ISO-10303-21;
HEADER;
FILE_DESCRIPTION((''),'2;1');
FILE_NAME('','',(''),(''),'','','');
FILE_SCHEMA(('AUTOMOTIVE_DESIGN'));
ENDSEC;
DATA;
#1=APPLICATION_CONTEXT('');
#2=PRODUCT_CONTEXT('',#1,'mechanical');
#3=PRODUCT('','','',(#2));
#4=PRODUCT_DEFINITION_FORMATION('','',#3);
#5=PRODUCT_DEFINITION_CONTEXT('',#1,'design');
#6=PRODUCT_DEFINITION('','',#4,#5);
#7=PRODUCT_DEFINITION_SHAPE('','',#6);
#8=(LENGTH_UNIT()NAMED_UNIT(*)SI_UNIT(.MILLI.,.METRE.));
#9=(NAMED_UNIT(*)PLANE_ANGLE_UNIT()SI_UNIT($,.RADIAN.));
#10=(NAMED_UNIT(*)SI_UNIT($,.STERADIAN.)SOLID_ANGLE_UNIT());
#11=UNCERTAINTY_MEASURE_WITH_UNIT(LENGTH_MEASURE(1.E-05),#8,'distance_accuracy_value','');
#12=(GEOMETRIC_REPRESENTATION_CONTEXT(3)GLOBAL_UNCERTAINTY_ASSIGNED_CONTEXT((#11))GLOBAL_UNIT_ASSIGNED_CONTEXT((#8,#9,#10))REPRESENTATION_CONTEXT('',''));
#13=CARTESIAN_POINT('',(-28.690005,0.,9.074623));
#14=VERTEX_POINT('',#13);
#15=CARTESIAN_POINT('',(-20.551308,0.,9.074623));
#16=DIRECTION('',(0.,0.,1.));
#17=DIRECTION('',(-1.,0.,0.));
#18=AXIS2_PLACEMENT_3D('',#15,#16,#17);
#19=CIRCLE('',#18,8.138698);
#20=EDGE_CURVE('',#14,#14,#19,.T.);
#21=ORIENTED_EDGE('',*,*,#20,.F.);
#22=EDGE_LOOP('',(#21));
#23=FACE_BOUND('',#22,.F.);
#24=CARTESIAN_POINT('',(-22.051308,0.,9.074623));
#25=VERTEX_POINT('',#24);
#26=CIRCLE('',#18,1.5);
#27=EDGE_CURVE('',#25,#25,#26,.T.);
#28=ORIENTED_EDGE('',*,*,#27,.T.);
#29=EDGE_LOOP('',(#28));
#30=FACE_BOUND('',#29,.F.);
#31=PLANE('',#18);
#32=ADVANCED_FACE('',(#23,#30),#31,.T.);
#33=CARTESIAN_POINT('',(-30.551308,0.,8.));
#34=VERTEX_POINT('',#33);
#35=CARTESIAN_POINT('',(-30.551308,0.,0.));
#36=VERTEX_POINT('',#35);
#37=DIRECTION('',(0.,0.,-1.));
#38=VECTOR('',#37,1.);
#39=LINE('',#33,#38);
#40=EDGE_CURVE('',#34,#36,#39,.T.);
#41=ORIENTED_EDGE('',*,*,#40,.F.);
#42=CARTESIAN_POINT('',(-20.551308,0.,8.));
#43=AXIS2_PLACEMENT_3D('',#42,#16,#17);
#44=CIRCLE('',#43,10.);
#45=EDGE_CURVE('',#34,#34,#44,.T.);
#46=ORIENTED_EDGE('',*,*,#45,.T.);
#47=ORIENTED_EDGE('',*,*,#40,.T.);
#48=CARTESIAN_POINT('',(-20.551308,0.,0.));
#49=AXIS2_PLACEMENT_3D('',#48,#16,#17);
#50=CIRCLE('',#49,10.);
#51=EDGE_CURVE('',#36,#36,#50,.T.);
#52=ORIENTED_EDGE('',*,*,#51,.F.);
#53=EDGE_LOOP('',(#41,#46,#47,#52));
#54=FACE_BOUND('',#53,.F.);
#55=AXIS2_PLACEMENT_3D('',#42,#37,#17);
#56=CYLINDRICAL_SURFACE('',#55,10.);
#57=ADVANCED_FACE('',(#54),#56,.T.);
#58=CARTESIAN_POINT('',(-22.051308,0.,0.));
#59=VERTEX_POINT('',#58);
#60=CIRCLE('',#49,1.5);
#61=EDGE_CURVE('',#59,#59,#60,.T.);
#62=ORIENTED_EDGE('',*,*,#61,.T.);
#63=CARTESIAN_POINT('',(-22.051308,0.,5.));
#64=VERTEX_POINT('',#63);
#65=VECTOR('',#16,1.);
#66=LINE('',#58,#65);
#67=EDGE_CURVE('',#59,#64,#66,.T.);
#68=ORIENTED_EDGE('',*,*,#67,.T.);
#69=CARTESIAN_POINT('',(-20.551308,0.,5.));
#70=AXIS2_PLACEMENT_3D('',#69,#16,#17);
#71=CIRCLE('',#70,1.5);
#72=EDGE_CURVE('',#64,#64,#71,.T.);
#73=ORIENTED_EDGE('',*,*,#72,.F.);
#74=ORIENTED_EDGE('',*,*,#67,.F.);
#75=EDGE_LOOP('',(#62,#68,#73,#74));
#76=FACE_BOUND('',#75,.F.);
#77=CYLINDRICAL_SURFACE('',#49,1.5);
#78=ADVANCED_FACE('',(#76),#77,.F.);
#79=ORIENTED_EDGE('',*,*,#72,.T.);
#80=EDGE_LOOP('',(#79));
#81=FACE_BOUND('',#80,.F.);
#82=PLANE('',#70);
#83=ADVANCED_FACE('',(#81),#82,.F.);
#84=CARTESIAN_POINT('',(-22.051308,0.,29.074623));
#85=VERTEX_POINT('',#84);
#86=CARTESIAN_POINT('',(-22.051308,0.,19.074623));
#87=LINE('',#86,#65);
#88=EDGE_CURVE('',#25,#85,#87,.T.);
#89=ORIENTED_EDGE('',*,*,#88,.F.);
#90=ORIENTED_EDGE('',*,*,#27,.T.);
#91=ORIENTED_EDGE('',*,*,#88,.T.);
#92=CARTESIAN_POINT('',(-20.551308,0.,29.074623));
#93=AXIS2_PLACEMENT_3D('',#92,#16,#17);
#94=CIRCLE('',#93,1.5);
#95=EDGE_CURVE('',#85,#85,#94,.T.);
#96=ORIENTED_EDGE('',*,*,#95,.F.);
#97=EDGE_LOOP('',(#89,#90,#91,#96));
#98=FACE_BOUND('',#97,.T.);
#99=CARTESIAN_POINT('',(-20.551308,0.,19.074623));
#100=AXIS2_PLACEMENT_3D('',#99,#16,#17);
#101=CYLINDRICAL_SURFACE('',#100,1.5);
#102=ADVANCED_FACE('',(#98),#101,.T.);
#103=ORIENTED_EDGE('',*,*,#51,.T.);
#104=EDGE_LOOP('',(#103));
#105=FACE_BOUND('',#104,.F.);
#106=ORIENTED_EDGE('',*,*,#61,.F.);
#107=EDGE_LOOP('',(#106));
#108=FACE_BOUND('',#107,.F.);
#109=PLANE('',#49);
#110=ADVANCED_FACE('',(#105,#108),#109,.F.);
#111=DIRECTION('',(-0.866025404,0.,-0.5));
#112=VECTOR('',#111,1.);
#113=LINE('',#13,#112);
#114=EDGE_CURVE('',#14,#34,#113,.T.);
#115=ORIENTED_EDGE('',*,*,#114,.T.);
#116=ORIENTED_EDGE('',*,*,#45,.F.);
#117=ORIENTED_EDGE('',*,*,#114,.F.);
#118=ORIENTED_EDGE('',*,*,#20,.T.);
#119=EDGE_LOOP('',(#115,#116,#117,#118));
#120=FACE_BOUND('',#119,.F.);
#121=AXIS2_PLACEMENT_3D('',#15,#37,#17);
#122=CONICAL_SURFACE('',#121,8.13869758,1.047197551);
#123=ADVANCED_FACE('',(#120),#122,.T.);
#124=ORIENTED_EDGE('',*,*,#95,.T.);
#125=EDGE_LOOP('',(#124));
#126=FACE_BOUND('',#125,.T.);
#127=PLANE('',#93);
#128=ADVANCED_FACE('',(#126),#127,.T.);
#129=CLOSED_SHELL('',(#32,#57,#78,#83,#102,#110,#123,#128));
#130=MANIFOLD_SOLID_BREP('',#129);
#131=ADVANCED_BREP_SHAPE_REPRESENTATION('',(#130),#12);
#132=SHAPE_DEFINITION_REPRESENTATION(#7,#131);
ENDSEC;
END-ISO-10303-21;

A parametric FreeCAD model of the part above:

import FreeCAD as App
import Part
import Sketcher
Q = App.Units.Quantity

doc = App.newDocument("Part")
params = doc.addObject("Spreadsheet::Sheet", "Params")
for row, (alias, value) in enumerate([
    ("sketch1_height", "20 mm"),
    ("sketch1_height2", "8 mm"),
    ("sketch1_height3", "5 mm"),
    ("sketch1_width", "8.5 mm"),
    ("sketch1_width2", "1.5 mm"),
    ("revolution_angle", "360 deg"),
], start=1):
    params.set(f"A{row}", alias)
    params.set(f"B{row}", "=" + value)
    params.setAlias(f"B{row}", alias)

body = doc.addObject("PartDesign::Body", "Body")

# Sketch on XZ plane
sketch1 = body.newObject("Sketcher::SketchObject", "Sketch")
sketch1.AttachmentSupport = (doc.getObject("XZ_Plane"), [""])
sketch1.MapMode = "FlatFace"
sketch1.addGeometry(Part.LineSegment(App.Vector(-22.1, 29.1, 0), App.Vector(-22.1, 9.1, 0)), False)
sketch1.addGeometry(Part.LineSegment(App.Vector(-22.1, 9.1, 0), App.Vector(-28.7, 9.1, 0)), False)
sketch1.addGeometry(Part.LineSegment(App.Vector(-28.7, 9.1, 0), App.Vector(-30.6, 8, 0)), False)
sketch1.addGeometry(Part.LineSegment(App.Vector(-30.6, 8, 0), App.Vector(-30.6, 0, 0)), False)
sketch1.addGeometry(Part.LineSegment(App.Vector(-30.6, 0, 0), App.Vector(-22.1, 0, 0)), False)
sketch1.addGeometry(Part.LineSegment(App.Vector(-22.1, 0, 0), App.Vector(-22.1, 5, 0)), False)
sketch1.addGeometry(Part.LineSegment(App.Vector(-22.1, 5, 0), App.Vector(-20.6, 5, 0)), False)
sketch1.addGeometry(Part.LineSegment(App.Vector(-20.6, 5, 0), App.Vector(-20.6, 29.1, 0)), False)
sketch1.addGeometry(Part.LineSegment(App.Vector(-20.6, 29.1, 0), App.Vector(-22.1, 29.1, 0)), False)
sketch1.addGeometry(Part.LineSegment(App.Vector(-20.6, 0, 0), App.Vector(-20.6, 29.1, 0)), True)  # axis
sketch1.addConstraint(Sketcher.Constraint("Coincident", 0, 2, 1, 1))
sketch1.addConstraint(Sketcher.Constraint("Coincident", 1, 2, 2, 1))
sketch1.addConstraint(Sketcher.Constraint("Coincident", 2, 2, 3, 1))
sketch1.addConstraint(Sketcher.Constraint("Coincident", 3, 2, 4, 1))
sketch1.addConstraint(Sketcher.Constraint("Coincident", 4, 2, 5, 1))
sketch1.addConstraint(Sketcher.Constraint("Coincident", 5, 2, 6, 1))
sketch1.addConstraint(Sketcher.Constraint("Coincident", 6, 2, 7, 1))
sketch1.addConstraint(Sketcher.Constraint("Coincident", 7, 2, 8, 1))
sketch1.addConstraint(Sketcher.Constraint("Coincident", 8, 2, 0, 1))
sketch1.addConstraint(Sketcher.Constraint("Vertical", 0))
sketch1.addConstraint(Sketcher.Constraint("Horizontal", 1))
sketch1.addConstraint(Sketcher.Constraint("Vertical", 3))
sketch1.addConstraint(Sketcher.Constraint("Horizontal", 4))
sketch1.addConstraint(Sketcher.Constraint("Vertical", 5))
sketch1.addConstraint(Sketcher.Constraint("Horizontal", 6))
sketch1.addConstraint(Sketcher.Constraint("Vertical", 7))
sketch1.addConstraint(Sketcher.Constraint("Horizontal", 8))
sketch1.addConstraint(Sketcher.Constraint("Vertical", 9))
sketch1.addConstraint(Sketcher.Constraint("Coincident", 9, 2, 7, 2))
sketch1.addConstraint(Sketcher.Constraint("PointOnObject", 3, 2, -1))
sketch1.addConstraint(Sketcher.Constraint("PointOnObject", 9, 1, -1))
sketch1.addConstraint(Sketcher.Constraint("Vertical", 0, 2, 4, 2))
sketch1.addConstraint(Sketcher.Constraint("DistanceY", 0, 2, 0, 1, Q("20 mm")))
sketch1.addConstraint(Sketcher.Constraint("DistanceY", 3, 2, 3, 1, Q("8 mm")))
sketch1.addConstraint(Sketcher.Constraint("DistanceY", 5, 1, 5, 2, Q("5 mm")))
sketch1.addConstraint(Sketcher.Constraint("Angle", 2, Q("-150 deg")))
sketch1.addConstraint(Sketcher.Constraint("DistanceX", 4, 1, 4, 2, Q("8.5 mm")))
sketch1.addConstraint(Sketcher.Constraint("DistanceX", 6, 1, 6, 2, Q("1.5 mm")))
sketch1.addConstraint(Sketcher.Constraint("DistanceX", 1, 2, 1, 1, Q("6.638698 mm")))
sketch1.addConstraint(Sketcher.Constraint("DistanceX", 0, 2, -1, 1, Q("22.051308 mm")))
sketch1.setExpression("Constraints[22]", "Params.sketch1_height")
sketch1.setExpression("Constraints[23]", "Params.sketch1_height2")
sketch1.setExpression("Constraints[24]", "Params.sketch1_height3")
sketch1.setExpression("Constraints[26]", "Params.sketch1_width")
sketch1.setExpression("Constraints[27]", "Params.sketch1_width2")
revolution = body.newObject("PartDesign::Revolution", "Revolution")
revolution.Profile = sketch1
revolution.ReferenceAxis = (sketch1, ["Axis0"])
revolution.setExpression("Angle", "Params.revolution_angle")

doc.recompute()
